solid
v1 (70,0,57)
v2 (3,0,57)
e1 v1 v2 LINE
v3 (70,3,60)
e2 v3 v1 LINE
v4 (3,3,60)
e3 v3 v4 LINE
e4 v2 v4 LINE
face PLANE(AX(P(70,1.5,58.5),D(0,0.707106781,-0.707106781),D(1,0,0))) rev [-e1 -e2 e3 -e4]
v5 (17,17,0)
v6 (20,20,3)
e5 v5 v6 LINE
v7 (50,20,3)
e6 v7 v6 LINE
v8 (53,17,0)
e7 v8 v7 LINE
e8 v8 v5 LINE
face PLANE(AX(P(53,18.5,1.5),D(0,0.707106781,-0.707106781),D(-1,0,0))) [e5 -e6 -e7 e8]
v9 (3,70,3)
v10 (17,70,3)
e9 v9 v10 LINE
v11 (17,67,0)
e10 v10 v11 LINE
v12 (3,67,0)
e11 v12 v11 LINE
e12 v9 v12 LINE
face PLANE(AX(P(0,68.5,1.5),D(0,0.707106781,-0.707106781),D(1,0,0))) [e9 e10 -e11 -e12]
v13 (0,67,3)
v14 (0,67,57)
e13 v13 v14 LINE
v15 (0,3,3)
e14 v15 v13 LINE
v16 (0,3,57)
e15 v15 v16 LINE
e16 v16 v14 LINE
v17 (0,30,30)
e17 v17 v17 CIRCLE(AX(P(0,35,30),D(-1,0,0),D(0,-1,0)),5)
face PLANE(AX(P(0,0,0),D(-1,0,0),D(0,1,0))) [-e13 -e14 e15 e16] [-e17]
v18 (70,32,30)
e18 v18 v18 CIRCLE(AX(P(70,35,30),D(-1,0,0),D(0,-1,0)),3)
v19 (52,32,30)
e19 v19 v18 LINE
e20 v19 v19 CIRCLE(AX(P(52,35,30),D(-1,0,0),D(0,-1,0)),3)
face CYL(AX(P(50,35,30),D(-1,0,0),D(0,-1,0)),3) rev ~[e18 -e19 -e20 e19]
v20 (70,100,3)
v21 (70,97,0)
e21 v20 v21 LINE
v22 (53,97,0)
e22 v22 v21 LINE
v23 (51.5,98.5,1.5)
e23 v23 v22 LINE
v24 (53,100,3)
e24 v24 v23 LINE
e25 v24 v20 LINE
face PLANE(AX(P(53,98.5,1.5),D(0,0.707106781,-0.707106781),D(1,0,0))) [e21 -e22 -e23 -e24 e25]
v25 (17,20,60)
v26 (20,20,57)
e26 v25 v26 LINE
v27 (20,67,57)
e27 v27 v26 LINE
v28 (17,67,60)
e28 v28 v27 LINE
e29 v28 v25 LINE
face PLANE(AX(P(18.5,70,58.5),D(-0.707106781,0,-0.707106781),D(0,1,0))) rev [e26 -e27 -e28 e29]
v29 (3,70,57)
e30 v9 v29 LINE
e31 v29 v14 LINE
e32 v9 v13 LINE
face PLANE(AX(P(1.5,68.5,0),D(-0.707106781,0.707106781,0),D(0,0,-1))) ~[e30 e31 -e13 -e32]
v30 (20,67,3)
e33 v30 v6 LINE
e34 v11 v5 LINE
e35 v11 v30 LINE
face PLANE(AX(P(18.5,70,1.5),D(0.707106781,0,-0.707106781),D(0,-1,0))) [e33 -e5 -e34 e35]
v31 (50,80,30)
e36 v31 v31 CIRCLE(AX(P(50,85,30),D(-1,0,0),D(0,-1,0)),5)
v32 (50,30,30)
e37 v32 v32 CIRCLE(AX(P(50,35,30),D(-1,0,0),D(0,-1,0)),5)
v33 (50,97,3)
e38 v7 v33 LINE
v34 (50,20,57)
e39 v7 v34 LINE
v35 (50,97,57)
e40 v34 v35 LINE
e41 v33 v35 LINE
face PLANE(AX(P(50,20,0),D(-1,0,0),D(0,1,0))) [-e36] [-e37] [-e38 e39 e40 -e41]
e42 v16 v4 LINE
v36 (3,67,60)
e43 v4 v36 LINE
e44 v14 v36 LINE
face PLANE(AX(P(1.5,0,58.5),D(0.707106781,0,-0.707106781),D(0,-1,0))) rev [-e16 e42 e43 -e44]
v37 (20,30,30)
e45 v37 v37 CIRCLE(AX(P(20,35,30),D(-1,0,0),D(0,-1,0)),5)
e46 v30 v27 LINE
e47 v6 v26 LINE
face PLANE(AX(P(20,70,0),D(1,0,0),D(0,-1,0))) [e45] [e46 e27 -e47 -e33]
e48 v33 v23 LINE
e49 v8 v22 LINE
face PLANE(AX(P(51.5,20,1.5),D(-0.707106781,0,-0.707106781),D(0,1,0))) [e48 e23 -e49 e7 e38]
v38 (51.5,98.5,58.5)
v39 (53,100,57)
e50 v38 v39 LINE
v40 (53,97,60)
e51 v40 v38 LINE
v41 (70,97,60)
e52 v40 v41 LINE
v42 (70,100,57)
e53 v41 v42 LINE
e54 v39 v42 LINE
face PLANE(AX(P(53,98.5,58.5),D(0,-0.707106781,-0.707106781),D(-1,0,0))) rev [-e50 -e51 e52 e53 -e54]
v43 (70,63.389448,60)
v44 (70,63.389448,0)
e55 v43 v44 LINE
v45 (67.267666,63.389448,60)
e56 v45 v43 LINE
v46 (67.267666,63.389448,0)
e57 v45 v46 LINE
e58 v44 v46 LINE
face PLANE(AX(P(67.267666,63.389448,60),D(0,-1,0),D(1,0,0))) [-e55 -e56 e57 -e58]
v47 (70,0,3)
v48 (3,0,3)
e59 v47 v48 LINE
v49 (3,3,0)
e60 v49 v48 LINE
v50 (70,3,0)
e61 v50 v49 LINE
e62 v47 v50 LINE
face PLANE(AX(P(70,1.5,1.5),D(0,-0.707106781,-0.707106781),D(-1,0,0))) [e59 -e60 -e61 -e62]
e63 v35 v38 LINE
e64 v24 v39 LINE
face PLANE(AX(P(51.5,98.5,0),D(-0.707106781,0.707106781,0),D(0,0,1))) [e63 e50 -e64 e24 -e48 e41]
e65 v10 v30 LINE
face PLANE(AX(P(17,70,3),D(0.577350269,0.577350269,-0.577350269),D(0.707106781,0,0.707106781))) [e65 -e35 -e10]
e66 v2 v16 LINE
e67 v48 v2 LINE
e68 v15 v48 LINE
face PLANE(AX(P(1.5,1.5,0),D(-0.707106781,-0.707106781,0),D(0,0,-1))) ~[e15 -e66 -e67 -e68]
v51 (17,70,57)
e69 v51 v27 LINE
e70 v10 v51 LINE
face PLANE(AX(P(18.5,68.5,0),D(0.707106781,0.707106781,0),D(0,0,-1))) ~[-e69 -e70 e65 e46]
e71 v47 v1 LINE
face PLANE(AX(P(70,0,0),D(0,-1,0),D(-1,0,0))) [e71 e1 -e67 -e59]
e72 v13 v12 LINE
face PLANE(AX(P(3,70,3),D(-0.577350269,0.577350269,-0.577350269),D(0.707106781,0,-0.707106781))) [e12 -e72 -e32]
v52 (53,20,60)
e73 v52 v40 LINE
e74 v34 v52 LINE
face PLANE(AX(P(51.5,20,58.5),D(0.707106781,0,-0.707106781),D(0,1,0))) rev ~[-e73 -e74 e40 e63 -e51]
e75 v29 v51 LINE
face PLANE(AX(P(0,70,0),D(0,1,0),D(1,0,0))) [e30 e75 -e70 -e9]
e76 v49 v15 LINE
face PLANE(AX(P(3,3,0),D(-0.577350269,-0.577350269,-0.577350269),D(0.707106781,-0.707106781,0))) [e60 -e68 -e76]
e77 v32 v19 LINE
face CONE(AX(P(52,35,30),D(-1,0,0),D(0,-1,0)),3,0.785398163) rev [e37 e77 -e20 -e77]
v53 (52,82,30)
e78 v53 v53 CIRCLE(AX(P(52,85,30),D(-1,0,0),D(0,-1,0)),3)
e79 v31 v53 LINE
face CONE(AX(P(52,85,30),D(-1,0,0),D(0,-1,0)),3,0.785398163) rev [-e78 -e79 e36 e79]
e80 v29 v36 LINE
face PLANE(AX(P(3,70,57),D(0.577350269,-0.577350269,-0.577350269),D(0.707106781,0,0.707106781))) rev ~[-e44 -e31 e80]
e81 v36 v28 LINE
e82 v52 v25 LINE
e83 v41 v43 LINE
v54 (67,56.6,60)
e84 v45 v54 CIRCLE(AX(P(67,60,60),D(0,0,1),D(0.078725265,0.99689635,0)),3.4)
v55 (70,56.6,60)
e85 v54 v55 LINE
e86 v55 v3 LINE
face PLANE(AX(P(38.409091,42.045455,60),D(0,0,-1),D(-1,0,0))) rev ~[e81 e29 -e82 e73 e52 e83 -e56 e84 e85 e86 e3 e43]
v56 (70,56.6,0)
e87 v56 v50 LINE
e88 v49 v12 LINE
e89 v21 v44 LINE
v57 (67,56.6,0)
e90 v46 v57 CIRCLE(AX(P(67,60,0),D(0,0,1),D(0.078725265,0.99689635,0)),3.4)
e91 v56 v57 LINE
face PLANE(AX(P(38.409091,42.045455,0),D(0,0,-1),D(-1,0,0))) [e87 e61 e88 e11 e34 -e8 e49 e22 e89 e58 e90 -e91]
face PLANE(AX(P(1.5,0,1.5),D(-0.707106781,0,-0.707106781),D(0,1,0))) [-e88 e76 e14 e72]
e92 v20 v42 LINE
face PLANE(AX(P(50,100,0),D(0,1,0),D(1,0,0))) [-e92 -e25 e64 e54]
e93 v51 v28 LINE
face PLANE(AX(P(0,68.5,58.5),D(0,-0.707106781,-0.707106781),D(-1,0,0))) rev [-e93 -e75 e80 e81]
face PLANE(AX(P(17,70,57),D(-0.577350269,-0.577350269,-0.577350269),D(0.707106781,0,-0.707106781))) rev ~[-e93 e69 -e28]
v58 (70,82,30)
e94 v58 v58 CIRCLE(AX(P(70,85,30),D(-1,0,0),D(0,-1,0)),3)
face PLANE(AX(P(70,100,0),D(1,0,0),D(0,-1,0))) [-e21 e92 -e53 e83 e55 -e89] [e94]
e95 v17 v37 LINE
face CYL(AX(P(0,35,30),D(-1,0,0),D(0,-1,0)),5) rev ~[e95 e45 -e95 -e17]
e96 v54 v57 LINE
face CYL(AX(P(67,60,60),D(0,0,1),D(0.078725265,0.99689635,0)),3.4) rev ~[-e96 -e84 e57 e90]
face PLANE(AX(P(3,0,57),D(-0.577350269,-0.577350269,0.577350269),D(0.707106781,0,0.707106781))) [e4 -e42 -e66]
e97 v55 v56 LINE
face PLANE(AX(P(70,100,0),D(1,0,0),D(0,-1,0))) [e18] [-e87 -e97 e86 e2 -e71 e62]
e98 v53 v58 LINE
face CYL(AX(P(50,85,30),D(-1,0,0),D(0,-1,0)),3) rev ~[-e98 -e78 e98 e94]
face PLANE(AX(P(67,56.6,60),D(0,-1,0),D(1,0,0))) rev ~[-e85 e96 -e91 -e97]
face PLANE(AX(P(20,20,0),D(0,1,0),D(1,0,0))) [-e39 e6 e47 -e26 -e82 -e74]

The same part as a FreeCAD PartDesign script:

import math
import FreeCAD as App
import Part
import Sketcher


def edges_at(feature, points):
    """Names of the edges that pass closest to the given points."""
    edges = feature.Shape.Edges
    near = lambda p: min(range(len(edges)), key=lambda i: edges[i].distToShape(Part.Vertex(*p))[0])
    return sorted({f"Edge{near(p) + 1}" for p in points})


def add_polygon(sketch, points):
    """Adds a closed chain of lines whose ends are joined by coincident constraints."""
    first, n = sketch.GeometryCount, len(points)
    for a, b in zip(points, points[1:] + points[:1]):
        sketch.addGeometry(Part.LineSegment(App.Vector(*a, 0), App.Vector(*b, 0)), False)
    for i in range(n):
        sketch.addConstraint(Sketcher.Constraint("Coincident", first + i, 2, first + (i + 1) % n, 1))

doc = App.newDocument("Part")
body = doc.addObject("PartDesign::Body", "Body")

sketch1 = body.newObject("Sketcher::SketchObject", "Sketch")
sketch1.AttachmentSupport = (doc.getObject("XY_Plane"), [""])
sketch1.MapMode = "FlatFace"
add_polygon(sketch1, [(20, 70), (0, 70), (0, 0), (70, 0), (70, 100), (50, 100), (50, 20), (20, 20)])
sketch1.addConstraint([
    Sketcher.Constraint("Horizontal", 0),
    Sketcher.Constraint("Vertical", 1),
    Sketcher.Constraint("Horizontal", 2),
    Sketcher.Constraint("Vertical", 3),
    Sketcher.Constraint("Horizontal", 4),
    Sketcher.Constraint("Vertical", 5),
    Sketcher.Constraint("Horizontal", 6),
    Sketcher.Constraint("Vertical", 7),
    Sketcher.Constraint("Coincident", 1, 2, -1, 1),
    Sketcher.Constraint("Equal", 0, 4),
    Sketcher.Constraint("Equal", 2, 1),
    Sketcher.Constraint("DistanceX", 0, 2, 0, 1, 20.0),
    Sketcher.Constraint("DistanceX", 2, 1, 2, 2, 70.0),
    Sketcher.Constraint("DistanceY", 3, 1, 3, 2, 100.0),
    Sketcher.Constraint("DistanceY", 5, 2, 5, 1, 80.0),
])
pad1 = body.newObject("PartDesign::Pad", "Pad")
pad1.Profile = sketch1
pad1.Length = 60

sketch2 = body.newObject("Sketcher::SketchObject", "Sketch001")
sketch2.AttachmentSupport = (doc.getObject("XY_Plane"), [""])
sketch2.MapMode = "FlatFace"
sketch2.AttachmentOffset = App.Placement(App.Vector(0, 0, 60), App.Rotation())
sketch2.addGeometry([
    Part.ArcOfCircle(Part.Circle(App.Vector(67, 60, 0), App.Vector(0, 0, 1), 3.4), math.radians(85), math.radians(270)),
    Part.LineSegment(App.Vector(67, 56.6, 0), App.Vector(70, 56.6, 0)),
    Part.LineSegment(App.Vector(70, 56.6, 0), App.Vector(70, 63.4, 0)),
    Part.LineSegment(App.Vector(70, 63.4, 0), App.Vector(67.3, 63.4, 0)),
], False)
sketch2.addConstraint([
    Sketcher.Constraint("Tangent", 0, 2, 1, 1),
    Sketcher.Constraint("Coincident", 1, 2, 2, 1),
    Sketcher.Constraint("Coincident", 2, 2, 3, 1),
    Sketcher.Constraint("Coincident", 3, 2, 0, 1),
    Sketcher.Constraint("Horizontal", 1),
    Sketcher.Constraint("Vertical", 2),
    Sketcher.Constraint("Horizontal", 3),
    Sketcher.Constraint("Radius", 0, 3.4),
    Sketcher.Constraint("DistanceX", 1, 1, 1, 2, 3.0),
    Sketcher.Constraint("DistanceX", -1, 1, 0, 3, 67.0),
    Sketcher.Constraint("DistanceY", -1, 1, 0, 3, 60.0),
    Sketcher.Constraint("DistanceX", 3, 2, 3, 1, 2.732334),
])
pocket1 = body.newObject("PartDesign::Pocket", "Pocket")
pocket1.Profile = sketch2
pocket1.Type = "ThroughAll"

sketch3 = body.newObject("Sketcher::SketchObject", "Sketch002")
sketch3.AttachmentSupport = (doc.getObject("YZ_Plane"), [""])
sketch3.MapMode = "FlatFace"
sketch3.AttachmentOffset = App.Placement(App.Vector(0, 0, 50), App.Rotation())
sketch3.addGeometry([
    Part.Circle(App.Vector(85, 30, 0), App.Vector(0, 0, 1), 3),
    Part.Circle(App.Vector(35, 30, 0), App.Vector(0, 0, 1), 3),
], False)
sketch3.addConstraint([
    Sketcher.Constraint("Equal", 0, 1),
    Sketcher.Constraint("Horizontal", 0, 3, 1, 3),
    Sketcher.Constraint("Diameter", 0, 6.0),
    Sketcher.Constraint("DistanceX", -1, 1, 0, 3, 85.0),
    Sketcher.Constraint("DistanceY", -1, 1, 0, 3, 30.0),
    Sketcher.Constraint("DistanceX", -1, 1, 1, 3, 35.0),
])
pocket2 = body.newObject("PartDesign::Pocket", "Pocket001")
pocket2.Profile = sketch3
pocket2.Type = "ThroughAll"
pocket2.Reversed = True
doc.recompute()

chamfer = body.newObject("PartDesign::Chamfer", "Chamfer")
chamfer.Base = (pocket2, edges_at(pocket2, [(50, 88, 30)]))
chamfer.Size = 2
doc.recompute()

chamfer2 = body.newObject("PartDesign::Chamfer", "Chamfer001")
chamfer2.Base = (chamfer, edges_at(chamfer, [(50, 38, 30)]))
chamfer2.Size = 2
doc.recompute()

chamfer3 = body.newObject("PartDesign::Chamfer", "Chamfer002")
chamfer3.Base = (chamfer2, edges_at(chamfer2, [(50, 100, 30), (50, 60, 0), (50, 60, 60)]))
chamfer3.Size = 3
doc.recompute()

chamfer4 = body.newObject("PartDesign::Chamfer", "Chamfer003")
chamfer4.Base = (chamfer3, edges_at(chamfer3, [
    (0, 35, 60),
    (0, 0, 30),
    (0, 35, 0),
    (0, 70, 30),
    (35, 0, 60),
    (35, 0, 0),
    (20, 45, 60),
    (10, 70, 60),
    (36.5, 20, 0),
    (20, 45, 0),
    (10, 70, 0),
    (20, 70, 30),
    (61.5, 100, 0),
    (61.5, 100, 60),
]))
chamfer4.Size = 3

sketch4 = body.newObject("Sketcher::SketchObject", "Sketch003")
sketch4.AttachmentSupport = (doc.getObject("YZ_Plane"), [""])
sketch4.MapMode = "FlatFace"
sketch4.addGeometry(Part.Circle(App.Vector(35, 30, 0), App.Vector(0, 0, 1), 5), False)
sketch4.addConstraint([
    Sketcher.Constraint("Diameter", 0, 10.0),
    Sketcher.Constraint("DistanceX", -1, 1, 0, 3, 35.0),
    Sketcher.Constraint("DistanceY", -1, 1, 0, 3, 30.0),
])
pocket3 = body.newObject("PartDesign::Pocket", "Pocket002")
pocket3.Profile = sketch4
pocket3.Length = 20
pocket3.Reversed = True

doc.recompute()
